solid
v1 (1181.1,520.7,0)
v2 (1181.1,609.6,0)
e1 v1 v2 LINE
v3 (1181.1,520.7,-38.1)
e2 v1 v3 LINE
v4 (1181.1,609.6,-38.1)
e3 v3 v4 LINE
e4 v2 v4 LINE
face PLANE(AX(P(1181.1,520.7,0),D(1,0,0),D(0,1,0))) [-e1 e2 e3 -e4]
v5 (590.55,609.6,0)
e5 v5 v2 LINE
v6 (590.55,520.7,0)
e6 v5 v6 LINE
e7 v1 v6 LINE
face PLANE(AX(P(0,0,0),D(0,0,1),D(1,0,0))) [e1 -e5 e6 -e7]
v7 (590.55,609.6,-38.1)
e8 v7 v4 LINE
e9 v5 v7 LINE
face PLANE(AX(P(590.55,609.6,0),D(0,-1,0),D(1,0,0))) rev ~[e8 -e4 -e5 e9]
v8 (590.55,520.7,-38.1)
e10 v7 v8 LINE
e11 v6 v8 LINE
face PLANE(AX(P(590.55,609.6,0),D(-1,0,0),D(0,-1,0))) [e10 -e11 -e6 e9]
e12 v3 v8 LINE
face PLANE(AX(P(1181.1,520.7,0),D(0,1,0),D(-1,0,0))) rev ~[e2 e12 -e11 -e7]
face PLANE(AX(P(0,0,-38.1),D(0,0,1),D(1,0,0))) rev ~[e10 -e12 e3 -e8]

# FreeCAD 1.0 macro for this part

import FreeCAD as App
import Part
import Sketcher
from FreeCAD import Vector
Q = App.Units.Quantity

doc = App.newDocument("Part")
body = doc.addObject("PartDesign::Body", "Body")

# Sketch on XY plane
sketch1 = body.newObject("Sketcher::SketchObject", "Sketch")
sketch1.AttachmentSupport = (doc.getObject("XY_Plane"), [""])
sketch1.MapMode = "FlatFace"
sketch1.addGeometry([
    Part.LineSegment(Vector(1181, 610, 0), Vector(591, 610, 0)),
    Part.LineSegment(Vector(591, 610, 0), Vector(591, 521, 0)),
    Part.LineSegment(Vector(591, 521, 0), Vector(1181, 521, 0)),
    Part.LineSegment(Vector(1181, 521, 0), Vector(1181, 610, 0)),
], False)
sketch1.addConstraint([
    Sketcher.Constraint("Coincident", 0, 2, 1, 1),
    Sketcher.Constraint("Coincident", 1, 2, 2, 1),
    Sketcher.Constraint("Coincident", 2, 2, 3, 1),
    Sketcher.Constraint("Coincident", 3, 2, 0, 1),
    Sketcher.Constraint("Horizontal", 0),
    Sketcher.Constraint("Vertical", 1),
    Sketcher.Constraint("Horizontal", 2),
    Sketcher.Constraint("Vertical", 3),
    Sketcher.Constraint("DistanceY", 1, 2, 1, 1, Q("3.5 in")),
    Sketcher.Constraint("DistanceY", -1, 1, 0, 2, Q("24 in")),
    Sketcher.Constraint("DistanceX", 0, 2, 0, 1, Q("23.25 in")),
    Sketcher.Constraint("DistanceX", -1, 1, 2, 2, Q("46.5 in")),
])
pad1 = body.newObject("PartDesign::Pad", "Pad")
pad1.Profile = sketch1
pad1.Length = Q("1.5 in")
pad1.Reversed = True

doc.recompute()
